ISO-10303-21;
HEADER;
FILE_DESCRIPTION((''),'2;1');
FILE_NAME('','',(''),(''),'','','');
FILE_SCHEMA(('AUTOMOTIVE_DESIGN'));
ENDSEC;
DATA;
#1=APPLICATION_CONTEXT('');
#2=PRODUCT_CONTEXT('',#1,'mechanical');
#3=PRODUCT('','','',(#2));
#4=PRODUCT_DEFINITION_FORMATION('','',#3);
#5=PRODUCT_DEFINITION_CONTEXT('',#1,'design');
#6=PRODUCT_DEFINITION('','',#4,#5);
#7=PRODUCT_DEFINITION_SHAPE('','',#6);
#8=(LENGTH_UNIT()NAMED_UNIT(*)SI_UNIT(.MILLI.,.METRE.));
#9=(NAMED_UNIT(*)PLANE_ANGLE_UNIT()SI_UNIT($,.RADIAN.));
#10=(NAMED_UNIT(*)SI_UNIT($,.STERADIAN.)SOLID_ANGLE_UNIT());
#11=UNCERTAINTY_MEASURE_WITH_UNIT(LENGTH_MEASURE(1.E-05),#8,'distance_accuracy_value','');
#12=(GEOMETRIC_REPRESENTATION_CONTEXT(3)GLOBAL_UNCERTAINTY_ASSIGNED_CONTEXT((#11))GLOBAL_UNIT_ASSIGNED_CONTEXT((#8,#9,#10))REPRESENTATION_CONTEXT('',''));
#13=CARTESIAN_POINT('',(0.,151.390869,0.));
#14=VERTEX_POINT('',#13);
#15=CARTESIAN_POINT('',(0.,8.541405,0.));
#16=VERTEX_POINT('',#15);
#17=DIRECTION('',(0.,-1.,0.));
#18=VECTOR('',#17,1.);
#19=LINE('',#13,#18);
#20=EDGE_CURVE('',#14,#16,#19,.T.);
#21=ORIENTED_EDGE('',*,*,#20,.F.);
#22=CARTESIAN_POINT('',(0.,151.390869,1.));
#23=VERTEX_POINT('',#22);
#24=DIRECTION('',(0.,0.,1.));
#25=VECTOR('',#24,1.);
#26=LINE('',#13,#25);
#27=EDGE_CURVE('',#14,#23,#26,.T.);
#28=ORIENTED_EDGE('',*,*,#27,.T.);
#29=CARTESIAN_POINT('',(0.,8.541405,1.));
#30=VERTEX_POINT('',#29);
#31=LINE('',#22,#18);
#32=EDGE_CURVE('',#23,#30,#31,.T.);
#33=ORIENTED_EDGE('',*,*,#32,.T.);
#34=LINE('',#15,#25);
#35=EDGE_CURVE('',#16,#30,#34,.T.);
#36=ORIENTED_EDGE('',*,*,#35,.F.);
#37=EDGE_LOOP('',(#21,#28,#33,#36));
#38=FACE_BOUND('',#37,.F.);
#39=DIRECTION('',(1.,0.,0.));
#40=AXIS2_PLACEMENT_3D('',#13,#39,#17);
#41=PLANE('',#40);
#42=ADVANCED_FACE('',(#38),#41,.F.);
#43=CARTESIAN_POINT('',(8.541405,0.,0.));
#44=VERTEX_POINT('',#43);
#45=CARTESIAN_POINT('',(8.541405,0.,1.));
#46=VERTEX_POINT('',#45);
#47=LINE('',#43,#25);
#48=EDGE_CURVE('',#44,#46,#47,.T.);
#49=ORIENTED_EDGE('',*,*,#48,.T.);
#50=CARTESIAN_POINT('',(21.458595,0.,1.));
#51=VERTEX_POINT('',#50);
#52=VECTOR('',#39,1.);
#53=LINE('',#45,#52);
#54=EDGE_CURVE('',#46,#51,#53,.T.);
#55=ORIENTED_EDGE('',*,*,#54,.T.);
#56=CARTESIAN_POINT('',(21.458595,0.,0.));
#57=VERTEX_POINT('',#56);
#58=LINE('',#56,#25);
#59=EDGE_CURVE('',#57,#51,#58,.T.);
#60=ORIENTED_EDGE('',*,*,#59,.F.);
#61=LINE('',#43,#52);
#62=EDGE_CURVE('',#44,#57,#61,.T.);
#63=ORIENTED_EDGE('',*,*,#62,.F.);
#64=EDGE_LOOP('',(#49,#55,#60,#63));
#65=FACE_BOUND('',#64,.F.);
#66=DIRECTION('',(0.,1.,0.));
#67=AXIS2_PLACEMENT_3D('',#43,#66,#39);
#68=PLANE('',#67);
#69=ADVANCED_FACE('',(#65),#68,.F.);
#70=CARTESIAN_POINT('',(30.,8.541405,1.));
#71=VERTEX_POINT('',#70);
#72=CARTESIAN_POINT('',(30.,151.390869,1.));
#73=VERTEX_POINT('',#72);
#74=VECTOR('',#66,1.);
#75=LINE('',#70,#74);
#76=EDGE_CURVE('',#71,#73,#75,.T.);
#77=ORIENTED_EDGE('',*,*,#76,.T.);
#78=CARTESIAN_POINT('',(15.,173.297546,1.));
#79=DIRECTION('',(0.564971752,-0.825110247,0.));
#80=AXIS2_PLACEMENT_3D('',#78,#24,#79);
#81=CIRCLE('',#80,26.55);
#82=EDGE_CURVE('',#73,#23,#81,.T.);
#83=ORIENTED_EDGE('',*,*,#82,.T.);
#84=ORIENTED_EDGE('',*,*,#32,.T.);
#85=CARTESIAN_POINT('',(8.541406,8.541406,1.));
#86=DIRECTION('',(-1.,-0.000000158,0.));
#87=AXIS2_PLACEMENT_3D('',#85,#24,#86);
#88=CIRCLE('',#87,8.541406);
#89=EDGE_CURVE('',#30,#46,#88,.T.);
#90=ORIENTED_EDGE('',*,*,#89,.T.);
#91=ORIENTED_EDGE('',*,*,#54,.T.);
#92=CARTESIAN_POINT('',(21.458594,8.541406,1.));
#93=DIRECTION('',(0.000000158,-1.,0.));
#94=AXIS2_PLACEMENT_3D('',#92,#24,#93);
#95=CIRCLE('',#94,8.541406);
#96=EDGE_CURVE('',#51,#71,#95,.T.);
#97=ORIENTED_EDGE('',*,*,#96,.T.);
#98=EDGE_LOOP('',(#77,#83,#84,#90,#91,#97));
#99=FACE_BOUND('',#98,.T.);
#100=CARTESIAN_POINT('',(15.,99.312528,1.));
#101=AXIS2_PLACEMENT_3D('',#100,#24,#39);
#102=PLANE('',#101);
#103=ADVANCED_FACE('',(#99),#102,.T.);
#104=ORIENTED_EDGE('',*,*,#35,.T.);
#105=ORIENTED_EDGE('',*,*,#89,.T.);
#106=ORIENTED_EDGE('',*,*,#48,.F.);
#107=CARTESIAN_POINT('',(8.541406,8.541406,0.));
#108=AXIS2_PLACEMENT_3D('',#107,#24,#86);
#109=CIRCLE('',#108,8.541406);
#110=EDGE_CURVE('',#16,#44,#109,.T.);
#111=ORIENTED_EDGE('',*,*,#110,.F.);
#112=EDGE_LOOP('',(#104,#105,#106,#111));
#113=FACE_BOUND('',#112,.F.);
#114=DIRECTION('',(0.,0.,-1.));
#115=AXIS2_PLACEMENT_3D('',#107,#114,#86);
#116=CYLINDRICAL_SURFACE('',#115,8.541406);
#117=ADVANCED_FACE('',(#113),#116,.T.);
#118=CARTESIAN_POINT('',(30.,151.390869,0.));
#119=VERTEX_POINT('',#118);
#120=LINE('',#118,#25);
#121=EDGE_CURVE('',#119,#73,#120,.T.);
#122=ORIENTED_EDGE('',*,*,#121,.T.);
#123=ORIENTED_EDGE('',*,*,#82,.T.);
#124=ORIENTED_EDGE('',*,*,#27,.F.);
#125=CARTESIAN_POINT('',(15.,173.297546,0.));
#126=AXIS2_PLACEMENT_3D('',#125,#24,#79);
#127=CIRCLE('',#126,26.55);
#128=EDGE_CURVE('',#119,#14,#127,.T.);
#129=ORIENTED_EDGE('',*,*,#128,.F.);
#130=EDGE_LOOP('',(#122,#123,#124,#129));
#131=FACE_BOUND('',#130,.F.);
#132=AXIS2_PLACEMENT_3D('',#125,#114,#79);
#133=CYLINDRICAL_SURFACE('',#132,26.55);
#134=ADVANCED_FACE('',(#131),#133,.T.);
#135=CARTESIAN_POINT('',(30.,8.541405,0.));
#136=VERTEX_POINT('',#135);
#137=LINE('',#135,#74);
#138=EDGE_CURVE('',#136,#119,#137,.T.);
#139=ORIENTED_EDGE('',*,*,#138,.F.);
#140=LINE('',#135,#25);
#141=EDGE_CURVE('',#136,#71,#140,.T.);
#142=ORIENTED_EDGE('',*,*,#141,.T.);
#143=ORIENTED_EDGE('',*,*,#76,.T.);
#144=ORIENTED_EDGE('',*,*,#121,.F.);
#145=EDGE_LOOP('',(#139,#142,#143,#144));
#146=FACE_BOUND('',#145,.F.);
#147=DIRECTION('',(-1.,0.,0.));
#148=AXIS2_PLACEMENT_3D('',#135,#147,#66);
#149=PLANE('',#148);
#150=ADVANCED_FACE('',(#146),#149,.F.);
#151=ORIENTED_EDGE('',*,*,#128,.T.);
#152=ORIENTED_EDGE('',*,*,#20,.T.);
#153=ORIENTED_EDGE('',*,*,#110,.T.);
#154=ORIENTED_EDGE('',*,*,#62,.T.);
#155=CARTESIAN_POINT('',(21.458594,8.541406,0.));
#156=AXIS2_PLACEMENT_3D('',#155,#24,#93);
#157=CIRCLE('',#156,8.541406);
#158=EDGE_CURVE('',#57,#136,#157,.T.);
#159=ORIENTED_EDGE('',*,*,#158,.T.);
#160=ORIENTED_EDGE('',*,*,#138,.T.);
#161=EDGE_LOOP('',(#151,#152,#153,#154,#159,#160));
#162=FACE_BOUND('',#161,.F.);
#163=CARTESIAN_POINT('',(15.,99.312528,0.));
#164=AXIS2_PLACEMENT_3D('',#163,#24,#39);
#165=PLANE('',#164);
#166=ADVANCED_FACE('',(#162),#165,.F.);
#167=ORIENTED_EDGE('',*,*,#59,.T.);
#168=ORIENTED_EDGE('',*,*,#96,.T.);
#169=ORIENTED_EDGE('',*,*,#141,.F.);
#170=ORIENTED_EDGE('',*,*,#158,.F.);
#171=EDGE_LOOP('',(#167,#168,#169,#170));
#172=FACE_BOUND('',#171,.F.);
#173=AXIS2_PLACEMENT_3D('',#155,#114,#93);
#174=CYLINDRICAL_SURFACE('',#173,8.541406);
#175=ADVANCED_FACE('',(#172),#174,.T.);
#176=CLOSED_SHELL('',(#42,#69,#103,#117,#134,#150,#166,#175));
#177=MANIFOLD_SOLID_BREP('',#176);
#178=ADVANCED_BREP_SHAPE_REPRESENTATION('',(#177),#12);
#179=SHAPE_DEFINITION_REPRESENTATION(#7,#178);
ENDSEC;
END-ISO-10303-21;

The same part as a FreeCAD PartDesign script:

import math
import FreeCAD as App
import Part
import Sketcher

V = App.Vector

doc = App.newDocument("Part")
body = doc.addObject("PartDesign::Body", "Body")

# Sketch on XY plane
sketch1 = body.newObject("Sketcher::SketchObject", "Sketch")
sketch1.AttachmentSupport = (doc.getObject("XY_Plane"), [""])
sketch1.MapMode = "FlatFace"
sketch1.addGeometry([
    Part.LineSegment(V(9, 0, 0), V(21, 0, 0)),  # 0
    Part.ArcOfCircle(Part.Circle(V(21, 9, 0), V(0, 0, 1), 9), math.radians(-90), math.radians(0)),  # 1
    Part.LineSegment(V(30, 9, 0), V(30, 151, 0)),  # 2
    Part.ArcOfCircle(Part.Circle(V(15, 173, 0), V(0, 0, 1), 27), math.radians(-56), math.radians(236)),  # 3
    Part.LineSegment(V(0, 151, 0), V(0, 9, 0)),  # 4
    Part.ArcOfCircle(Part.Circle(V(9, 9, 0), V(0, 0, 1), 9), math.radians(-180), math.radians(-90)),  # 5
], False)
sketch1.addConstraint([
    Sketcher.Constraint("Tangent", 0, 2, 1, 1),
    Sketcher.Constraint("Tangent", 1, 2, 2, 1),
    Sketcher.Constraint("Coincident", 2, 2, 3, 1),
    Sketcher.Constraint("Coincident", 3, 2, 4, 1),
    Sketcher.Constraint("Tangent", 4, 2, 5, 1),
    Sketcher.Constraint("Tangent", 5, 2, 0, 1),
    Sketcher.Constraint("Horizontal", 0),
    Sketcher.Constraint("Vertical", 2),
    Sketcher.Constraint("Vertical", 4),
    Sketcher.Constraint("Equal", 1, 5),
    Sketcher.Constraint("PointOnObject", 0, 2, -1),
    Sketcher.Constraint("PointOnObject", 3, 2, -2),
    Sketcher.Constraint("Horizontal", 2, 2, 3, 2),
    Sketcher.Constraint("Radius", 3, 26.55),
    Sketcher.Constraint("DistanceX", -1, 1, 3, 3, 15.0),
    Sketcher.Constraint("Radius", 1, 8.541406),
    Sketcher.Constraint("DistanceY", 2, 1, 2, 2, 142.849464),
])
pad1 = body.newObject("PartDesign::Pad", "Pad")
pad1.Profile = sketch1
pad1.Length = 1

doc.recompute()
